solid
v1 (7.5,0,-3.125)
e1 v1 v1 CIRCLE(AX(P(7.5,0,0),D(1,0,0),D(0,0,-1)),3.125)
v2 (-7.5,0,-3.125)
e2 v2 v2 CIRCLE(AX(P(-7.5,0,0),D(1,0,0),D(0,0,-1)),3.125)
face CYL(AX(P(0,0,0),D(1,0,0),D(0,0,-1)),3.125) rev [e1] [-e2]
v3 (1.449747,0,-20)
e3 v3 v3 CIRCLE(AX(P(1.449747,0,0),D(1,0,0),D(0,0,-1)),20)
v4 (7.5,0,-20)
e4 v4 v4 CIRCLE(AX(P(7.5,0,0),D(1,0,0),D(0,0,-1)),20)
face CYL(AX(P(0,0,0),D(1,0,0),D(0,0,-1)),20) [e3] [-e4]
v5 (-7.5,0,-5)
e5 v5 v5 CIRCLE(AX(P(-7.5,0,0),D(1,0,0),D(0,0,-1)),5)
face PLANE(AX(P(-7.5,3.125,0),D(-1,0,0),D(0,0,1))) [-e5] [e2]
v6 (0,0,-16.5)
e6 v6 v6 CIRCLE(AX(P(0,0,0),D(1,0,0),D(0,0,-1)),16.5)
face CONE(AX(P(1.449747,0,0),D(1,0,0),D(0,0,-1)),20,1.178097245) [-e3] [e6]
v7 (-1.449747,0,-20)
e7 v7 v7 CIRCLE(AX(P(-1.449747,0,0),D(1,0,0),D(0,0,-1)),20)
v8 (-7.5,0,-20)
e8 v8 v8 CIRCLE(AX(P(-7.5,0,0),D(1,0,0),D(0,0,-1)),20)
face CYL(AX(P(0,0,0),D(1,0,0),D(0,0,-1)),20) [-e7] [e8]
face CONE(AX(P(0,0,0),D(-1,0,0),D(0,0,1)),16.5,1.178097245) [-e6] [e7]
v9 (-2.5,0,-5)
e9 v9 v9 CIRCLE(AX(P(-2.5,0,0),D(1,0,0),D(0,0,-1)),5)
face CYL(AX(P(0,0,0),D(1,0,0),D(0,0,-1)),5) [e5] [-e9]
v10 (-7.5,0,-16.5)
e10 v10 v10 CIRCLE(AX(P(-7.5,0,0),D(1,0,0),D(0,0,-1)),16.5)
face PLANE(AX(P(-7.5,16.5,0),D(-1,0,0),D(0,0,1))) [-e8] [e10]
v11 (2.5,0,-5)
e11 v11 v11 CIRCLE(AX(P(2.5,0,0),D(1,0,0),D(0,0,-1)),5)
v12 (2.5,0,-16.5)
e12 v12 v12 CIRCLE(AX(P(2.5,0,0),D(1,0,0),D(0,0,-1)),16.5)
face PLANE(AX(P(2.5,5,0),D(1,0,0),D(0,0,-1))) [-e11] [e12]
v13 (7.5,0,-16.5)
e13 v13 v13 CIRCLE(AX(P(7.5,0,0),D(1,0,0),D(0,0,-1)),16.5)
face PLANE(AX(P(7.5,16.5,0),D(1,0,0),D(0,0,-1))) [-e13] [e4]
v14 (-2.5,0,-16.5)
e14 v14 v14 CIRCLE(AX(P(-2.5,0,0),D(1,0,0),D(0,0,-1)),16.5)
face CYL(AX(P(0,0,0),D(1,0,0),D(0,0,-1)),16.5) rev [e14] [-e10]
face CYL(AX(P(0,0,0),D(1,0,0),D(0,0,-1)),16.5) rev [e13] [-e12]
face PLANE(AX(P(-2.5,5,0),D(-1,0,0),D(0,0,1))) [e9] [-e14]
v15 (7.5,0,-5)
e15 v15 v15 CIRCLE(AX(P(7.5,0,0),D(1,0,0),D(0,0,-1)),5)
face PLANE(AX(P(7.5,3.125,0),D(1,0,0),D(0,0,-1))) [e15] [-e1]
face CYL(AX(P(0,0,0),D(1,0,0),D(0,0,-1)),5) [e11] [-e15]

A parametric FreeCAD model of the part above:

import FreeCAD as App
import Part
import Sketcher

V = App.Vector
Q = App.Units.Quantity

doc = App.newDocument("Part")
body = doc.addObject("PartDesign::Body", "Body")

# Sketch on XY plane
sketch1 = body.newObject("Sketcher::SketchObject", "Sketch")
sketch1.AttachmentSupport = (doc.getObject("XY_Plane"), [""])
sketch1.MapMode = "FlatFace"
sketch1.addGeometry(Part.LineSegment(V(-7.5, 3.1, 0), V(7.5, 3.1, 0)), False)
sketch1.addGeometry(Part.LineSegment(V(7.5, 3.1, 0), V(7.5, 5, 0)), False)
sketch1.addGeometry(Part.LineSegment(V(7.5, 5, 0), V(2.5, 5, 0)), False)
sketch1.addGeometry(Part.LineSegment(V(2.5, 5, 0), V(2.5, 16.5, 0)), False)
sketch1.addGeometry(Part.LineSegment(V(2.5, 16.5, 0), V(7.5, 16.5, 0)), False)
sketch1.addGeometry(Part.LineSegment(V(7.5, 16.5, 0), V(7.5, 20, 0)), False)
sketch1.addGeometry(Part.LineSegment(V(7.5, 20, 0), V(1.4, 20, 0)), False)
sketch1.addGeometry(Part.LineSegment(V(1.4, 20, 0), V(0, 16.5, 0)), False)
sketch1.addGeometry(Part.LineSegment(V(0, 16.5, 0), V(-1.4, 20, 0)), False)
sketch1.addGeometry(Part.LineSegment(V(-1.4, 20, 0), V(-7.5, 20, 0)), False)
sketch1.addGeometry(Part.LineSegment(V(-7.5, 20, 0), V(-7.5, 16.5, 0)), False)
sketch1.addGeometry(Part.LineSegment(V(-7.5, 16.5, 0), V(-2.5, 16.5, 0)), False)
sketch1.addGeometry(Part.LineSegment(V(-2.5, 16.5, 0), V(-2.5, 5, 0)), False)
sketch1.addGeometry(Part.LineSegment(V(-2.5, 5, 0), V(-7.5, 5, 0)), False)
sketch1.addGeometry(Part.LineSegment(V(-7.5, 5, 0), V(-7.5, 3.1, 0)), False)
sketch1.addConstraint(Sketcher.Constraint("Coincident", 0, 2, 1, 1))
sketch1.addConstraint(Sketcher.Constraint("Coincident", 1, 2, 2, 1))
sketch1.addConstraint(Sketcher.Constraint("Coincident", 2, 2, 3, 1))
sketch1.addConstraint(Sketcher.Constraint("Coincident", 3, 2, 4, 1))
sketch1.addConstraint(Sketcher.Constraint("Coincident", 4, 2, 5, 1))
sketch1.addConstraint(Sketcher.Constraint("Coincident", 5, 2, 6, 1))
sketch1.addConstraint(Sketcher.Constraint("Coincident", 6, 2, 7, 1))
sketch1.addConstraint(Sketcher.Constraint("Coincident", 7, 2, 8, 1))
sketch1.addConstraint(Sketcher.Constraint("Coincident", 8, 2, 9, 1))
sketch1.addConstraint(Sketcher.Constraint("Coincident", 9, 2, 10, 1))
sketch1.addConstraint(Sketcher.Constraint("Coincident", 10, 2, 11, 1))
sketch1.addConstraint(Sketcher.Constraint("Coincident", 11, 2, 12, 1))
sketch1.addConstraint(Sketcher.Constraint("Coincident", 12, 2, 13, 1))
sketch1.addConstraint(Sketcher.Constraint("Coincident", 13, 2, 14, 1))
sketch1.addConstraint(Sketcher.Constraint("Coincident", 14, 2, 0, 1))
sketch1.addConstraint(Sketcher.Constraint("Horizontal", 0))
sketch1.addConstraint(Sketcher.Constraint("Vertical", 1))
sketch1.addConstraint(Sketcher.Constraint("Horizontal", 2))
sketch1.addConstraint(Sketcher.Constraint("Vertical", 3))
sketch1.addConstraint(Sketcher.Constraint("Horizontal", 4))
sketch1.addConstraint(Sketcher.Constraint("Vertical", 5))
sketch1.addConstraint(Sketcher.Constraint("Horizontal", 6))
sketch1.addConstraint(Sketcher.Constraint("Horizontal", 9))
sketch1.addConstraint(Sketcher.Constraint("Vertical", 10))
sketch1.addConstraint(Sketcher.Constraint("Horizontal", 11))
sketch1.addConstraint(Sketcher.Constraint("Vertical", 12))
sketch1.addConstraint(Sketcher.Constraint("Horizontal", 13))
sketch1.addConstraint(Sketcher.Constraint("Vertical", 14))
sketch1.addConstraint(Sketcher.Constraint("Symmetric", 6, 2, 8, 2, -2))
sketch1.addConstraint(Sketcher.Constraint("Symmetric", 4, 2, 10, 2, -2))
sketch1.addConstraint(Sketcher.Constraint("Symmetric", 2, 2, 12, 2, -2))
sketch1.addConstraint(Sketcher.Constraint("PointOnObject", 7, 2, -2))
sketch1.addConstraint(Sketcher.Constraint("Horizontal", 4, 2, 7, 2))
sketch1.addConstraint(Sketcher.Constraint("Vertical", 1, 2, 4, 2))
sketch1.addConstraint(Sketcher.Constraint("Vertical", 10, 2, 13, 2))
sketch1.addConstraint(Sketcher.Constraint("DistanceX", 0, 1, 0, 2, 15.0))
sketch1.addConstraint(Sketcher.Constraint("DistanceX", 2, 2, 2, 1, 5.0))
sketch1.addConstraint(Sketcher.Constraint("DistanceY", 3, 1, 3, 2, 11.5))
sketch1.addConstraint(Sketcher.Constraint("DistanceY", 5, 1, 5, 2, 3.5))
sketch1.addConstraint(Sketcher.Constraint("DistanceY", -1, 1, 1, 2, 5.0))
sketch1.addConstraint(Sketcher.Constraint("Angle", 7, Q("-112.5 deg")))
sketch1.addConstraint(Sketcher.Constraint("DistanceY", 1, 1, 1, 2, 1.875))
revolution = body.newObject("PartDesign::Revolution", "Revolution")
revolution.Profile = sketch1
revolution.ReferenceAxis = (sketch1, ["H_Axis"])
revolution.Angle = 360

doc.recompute()
